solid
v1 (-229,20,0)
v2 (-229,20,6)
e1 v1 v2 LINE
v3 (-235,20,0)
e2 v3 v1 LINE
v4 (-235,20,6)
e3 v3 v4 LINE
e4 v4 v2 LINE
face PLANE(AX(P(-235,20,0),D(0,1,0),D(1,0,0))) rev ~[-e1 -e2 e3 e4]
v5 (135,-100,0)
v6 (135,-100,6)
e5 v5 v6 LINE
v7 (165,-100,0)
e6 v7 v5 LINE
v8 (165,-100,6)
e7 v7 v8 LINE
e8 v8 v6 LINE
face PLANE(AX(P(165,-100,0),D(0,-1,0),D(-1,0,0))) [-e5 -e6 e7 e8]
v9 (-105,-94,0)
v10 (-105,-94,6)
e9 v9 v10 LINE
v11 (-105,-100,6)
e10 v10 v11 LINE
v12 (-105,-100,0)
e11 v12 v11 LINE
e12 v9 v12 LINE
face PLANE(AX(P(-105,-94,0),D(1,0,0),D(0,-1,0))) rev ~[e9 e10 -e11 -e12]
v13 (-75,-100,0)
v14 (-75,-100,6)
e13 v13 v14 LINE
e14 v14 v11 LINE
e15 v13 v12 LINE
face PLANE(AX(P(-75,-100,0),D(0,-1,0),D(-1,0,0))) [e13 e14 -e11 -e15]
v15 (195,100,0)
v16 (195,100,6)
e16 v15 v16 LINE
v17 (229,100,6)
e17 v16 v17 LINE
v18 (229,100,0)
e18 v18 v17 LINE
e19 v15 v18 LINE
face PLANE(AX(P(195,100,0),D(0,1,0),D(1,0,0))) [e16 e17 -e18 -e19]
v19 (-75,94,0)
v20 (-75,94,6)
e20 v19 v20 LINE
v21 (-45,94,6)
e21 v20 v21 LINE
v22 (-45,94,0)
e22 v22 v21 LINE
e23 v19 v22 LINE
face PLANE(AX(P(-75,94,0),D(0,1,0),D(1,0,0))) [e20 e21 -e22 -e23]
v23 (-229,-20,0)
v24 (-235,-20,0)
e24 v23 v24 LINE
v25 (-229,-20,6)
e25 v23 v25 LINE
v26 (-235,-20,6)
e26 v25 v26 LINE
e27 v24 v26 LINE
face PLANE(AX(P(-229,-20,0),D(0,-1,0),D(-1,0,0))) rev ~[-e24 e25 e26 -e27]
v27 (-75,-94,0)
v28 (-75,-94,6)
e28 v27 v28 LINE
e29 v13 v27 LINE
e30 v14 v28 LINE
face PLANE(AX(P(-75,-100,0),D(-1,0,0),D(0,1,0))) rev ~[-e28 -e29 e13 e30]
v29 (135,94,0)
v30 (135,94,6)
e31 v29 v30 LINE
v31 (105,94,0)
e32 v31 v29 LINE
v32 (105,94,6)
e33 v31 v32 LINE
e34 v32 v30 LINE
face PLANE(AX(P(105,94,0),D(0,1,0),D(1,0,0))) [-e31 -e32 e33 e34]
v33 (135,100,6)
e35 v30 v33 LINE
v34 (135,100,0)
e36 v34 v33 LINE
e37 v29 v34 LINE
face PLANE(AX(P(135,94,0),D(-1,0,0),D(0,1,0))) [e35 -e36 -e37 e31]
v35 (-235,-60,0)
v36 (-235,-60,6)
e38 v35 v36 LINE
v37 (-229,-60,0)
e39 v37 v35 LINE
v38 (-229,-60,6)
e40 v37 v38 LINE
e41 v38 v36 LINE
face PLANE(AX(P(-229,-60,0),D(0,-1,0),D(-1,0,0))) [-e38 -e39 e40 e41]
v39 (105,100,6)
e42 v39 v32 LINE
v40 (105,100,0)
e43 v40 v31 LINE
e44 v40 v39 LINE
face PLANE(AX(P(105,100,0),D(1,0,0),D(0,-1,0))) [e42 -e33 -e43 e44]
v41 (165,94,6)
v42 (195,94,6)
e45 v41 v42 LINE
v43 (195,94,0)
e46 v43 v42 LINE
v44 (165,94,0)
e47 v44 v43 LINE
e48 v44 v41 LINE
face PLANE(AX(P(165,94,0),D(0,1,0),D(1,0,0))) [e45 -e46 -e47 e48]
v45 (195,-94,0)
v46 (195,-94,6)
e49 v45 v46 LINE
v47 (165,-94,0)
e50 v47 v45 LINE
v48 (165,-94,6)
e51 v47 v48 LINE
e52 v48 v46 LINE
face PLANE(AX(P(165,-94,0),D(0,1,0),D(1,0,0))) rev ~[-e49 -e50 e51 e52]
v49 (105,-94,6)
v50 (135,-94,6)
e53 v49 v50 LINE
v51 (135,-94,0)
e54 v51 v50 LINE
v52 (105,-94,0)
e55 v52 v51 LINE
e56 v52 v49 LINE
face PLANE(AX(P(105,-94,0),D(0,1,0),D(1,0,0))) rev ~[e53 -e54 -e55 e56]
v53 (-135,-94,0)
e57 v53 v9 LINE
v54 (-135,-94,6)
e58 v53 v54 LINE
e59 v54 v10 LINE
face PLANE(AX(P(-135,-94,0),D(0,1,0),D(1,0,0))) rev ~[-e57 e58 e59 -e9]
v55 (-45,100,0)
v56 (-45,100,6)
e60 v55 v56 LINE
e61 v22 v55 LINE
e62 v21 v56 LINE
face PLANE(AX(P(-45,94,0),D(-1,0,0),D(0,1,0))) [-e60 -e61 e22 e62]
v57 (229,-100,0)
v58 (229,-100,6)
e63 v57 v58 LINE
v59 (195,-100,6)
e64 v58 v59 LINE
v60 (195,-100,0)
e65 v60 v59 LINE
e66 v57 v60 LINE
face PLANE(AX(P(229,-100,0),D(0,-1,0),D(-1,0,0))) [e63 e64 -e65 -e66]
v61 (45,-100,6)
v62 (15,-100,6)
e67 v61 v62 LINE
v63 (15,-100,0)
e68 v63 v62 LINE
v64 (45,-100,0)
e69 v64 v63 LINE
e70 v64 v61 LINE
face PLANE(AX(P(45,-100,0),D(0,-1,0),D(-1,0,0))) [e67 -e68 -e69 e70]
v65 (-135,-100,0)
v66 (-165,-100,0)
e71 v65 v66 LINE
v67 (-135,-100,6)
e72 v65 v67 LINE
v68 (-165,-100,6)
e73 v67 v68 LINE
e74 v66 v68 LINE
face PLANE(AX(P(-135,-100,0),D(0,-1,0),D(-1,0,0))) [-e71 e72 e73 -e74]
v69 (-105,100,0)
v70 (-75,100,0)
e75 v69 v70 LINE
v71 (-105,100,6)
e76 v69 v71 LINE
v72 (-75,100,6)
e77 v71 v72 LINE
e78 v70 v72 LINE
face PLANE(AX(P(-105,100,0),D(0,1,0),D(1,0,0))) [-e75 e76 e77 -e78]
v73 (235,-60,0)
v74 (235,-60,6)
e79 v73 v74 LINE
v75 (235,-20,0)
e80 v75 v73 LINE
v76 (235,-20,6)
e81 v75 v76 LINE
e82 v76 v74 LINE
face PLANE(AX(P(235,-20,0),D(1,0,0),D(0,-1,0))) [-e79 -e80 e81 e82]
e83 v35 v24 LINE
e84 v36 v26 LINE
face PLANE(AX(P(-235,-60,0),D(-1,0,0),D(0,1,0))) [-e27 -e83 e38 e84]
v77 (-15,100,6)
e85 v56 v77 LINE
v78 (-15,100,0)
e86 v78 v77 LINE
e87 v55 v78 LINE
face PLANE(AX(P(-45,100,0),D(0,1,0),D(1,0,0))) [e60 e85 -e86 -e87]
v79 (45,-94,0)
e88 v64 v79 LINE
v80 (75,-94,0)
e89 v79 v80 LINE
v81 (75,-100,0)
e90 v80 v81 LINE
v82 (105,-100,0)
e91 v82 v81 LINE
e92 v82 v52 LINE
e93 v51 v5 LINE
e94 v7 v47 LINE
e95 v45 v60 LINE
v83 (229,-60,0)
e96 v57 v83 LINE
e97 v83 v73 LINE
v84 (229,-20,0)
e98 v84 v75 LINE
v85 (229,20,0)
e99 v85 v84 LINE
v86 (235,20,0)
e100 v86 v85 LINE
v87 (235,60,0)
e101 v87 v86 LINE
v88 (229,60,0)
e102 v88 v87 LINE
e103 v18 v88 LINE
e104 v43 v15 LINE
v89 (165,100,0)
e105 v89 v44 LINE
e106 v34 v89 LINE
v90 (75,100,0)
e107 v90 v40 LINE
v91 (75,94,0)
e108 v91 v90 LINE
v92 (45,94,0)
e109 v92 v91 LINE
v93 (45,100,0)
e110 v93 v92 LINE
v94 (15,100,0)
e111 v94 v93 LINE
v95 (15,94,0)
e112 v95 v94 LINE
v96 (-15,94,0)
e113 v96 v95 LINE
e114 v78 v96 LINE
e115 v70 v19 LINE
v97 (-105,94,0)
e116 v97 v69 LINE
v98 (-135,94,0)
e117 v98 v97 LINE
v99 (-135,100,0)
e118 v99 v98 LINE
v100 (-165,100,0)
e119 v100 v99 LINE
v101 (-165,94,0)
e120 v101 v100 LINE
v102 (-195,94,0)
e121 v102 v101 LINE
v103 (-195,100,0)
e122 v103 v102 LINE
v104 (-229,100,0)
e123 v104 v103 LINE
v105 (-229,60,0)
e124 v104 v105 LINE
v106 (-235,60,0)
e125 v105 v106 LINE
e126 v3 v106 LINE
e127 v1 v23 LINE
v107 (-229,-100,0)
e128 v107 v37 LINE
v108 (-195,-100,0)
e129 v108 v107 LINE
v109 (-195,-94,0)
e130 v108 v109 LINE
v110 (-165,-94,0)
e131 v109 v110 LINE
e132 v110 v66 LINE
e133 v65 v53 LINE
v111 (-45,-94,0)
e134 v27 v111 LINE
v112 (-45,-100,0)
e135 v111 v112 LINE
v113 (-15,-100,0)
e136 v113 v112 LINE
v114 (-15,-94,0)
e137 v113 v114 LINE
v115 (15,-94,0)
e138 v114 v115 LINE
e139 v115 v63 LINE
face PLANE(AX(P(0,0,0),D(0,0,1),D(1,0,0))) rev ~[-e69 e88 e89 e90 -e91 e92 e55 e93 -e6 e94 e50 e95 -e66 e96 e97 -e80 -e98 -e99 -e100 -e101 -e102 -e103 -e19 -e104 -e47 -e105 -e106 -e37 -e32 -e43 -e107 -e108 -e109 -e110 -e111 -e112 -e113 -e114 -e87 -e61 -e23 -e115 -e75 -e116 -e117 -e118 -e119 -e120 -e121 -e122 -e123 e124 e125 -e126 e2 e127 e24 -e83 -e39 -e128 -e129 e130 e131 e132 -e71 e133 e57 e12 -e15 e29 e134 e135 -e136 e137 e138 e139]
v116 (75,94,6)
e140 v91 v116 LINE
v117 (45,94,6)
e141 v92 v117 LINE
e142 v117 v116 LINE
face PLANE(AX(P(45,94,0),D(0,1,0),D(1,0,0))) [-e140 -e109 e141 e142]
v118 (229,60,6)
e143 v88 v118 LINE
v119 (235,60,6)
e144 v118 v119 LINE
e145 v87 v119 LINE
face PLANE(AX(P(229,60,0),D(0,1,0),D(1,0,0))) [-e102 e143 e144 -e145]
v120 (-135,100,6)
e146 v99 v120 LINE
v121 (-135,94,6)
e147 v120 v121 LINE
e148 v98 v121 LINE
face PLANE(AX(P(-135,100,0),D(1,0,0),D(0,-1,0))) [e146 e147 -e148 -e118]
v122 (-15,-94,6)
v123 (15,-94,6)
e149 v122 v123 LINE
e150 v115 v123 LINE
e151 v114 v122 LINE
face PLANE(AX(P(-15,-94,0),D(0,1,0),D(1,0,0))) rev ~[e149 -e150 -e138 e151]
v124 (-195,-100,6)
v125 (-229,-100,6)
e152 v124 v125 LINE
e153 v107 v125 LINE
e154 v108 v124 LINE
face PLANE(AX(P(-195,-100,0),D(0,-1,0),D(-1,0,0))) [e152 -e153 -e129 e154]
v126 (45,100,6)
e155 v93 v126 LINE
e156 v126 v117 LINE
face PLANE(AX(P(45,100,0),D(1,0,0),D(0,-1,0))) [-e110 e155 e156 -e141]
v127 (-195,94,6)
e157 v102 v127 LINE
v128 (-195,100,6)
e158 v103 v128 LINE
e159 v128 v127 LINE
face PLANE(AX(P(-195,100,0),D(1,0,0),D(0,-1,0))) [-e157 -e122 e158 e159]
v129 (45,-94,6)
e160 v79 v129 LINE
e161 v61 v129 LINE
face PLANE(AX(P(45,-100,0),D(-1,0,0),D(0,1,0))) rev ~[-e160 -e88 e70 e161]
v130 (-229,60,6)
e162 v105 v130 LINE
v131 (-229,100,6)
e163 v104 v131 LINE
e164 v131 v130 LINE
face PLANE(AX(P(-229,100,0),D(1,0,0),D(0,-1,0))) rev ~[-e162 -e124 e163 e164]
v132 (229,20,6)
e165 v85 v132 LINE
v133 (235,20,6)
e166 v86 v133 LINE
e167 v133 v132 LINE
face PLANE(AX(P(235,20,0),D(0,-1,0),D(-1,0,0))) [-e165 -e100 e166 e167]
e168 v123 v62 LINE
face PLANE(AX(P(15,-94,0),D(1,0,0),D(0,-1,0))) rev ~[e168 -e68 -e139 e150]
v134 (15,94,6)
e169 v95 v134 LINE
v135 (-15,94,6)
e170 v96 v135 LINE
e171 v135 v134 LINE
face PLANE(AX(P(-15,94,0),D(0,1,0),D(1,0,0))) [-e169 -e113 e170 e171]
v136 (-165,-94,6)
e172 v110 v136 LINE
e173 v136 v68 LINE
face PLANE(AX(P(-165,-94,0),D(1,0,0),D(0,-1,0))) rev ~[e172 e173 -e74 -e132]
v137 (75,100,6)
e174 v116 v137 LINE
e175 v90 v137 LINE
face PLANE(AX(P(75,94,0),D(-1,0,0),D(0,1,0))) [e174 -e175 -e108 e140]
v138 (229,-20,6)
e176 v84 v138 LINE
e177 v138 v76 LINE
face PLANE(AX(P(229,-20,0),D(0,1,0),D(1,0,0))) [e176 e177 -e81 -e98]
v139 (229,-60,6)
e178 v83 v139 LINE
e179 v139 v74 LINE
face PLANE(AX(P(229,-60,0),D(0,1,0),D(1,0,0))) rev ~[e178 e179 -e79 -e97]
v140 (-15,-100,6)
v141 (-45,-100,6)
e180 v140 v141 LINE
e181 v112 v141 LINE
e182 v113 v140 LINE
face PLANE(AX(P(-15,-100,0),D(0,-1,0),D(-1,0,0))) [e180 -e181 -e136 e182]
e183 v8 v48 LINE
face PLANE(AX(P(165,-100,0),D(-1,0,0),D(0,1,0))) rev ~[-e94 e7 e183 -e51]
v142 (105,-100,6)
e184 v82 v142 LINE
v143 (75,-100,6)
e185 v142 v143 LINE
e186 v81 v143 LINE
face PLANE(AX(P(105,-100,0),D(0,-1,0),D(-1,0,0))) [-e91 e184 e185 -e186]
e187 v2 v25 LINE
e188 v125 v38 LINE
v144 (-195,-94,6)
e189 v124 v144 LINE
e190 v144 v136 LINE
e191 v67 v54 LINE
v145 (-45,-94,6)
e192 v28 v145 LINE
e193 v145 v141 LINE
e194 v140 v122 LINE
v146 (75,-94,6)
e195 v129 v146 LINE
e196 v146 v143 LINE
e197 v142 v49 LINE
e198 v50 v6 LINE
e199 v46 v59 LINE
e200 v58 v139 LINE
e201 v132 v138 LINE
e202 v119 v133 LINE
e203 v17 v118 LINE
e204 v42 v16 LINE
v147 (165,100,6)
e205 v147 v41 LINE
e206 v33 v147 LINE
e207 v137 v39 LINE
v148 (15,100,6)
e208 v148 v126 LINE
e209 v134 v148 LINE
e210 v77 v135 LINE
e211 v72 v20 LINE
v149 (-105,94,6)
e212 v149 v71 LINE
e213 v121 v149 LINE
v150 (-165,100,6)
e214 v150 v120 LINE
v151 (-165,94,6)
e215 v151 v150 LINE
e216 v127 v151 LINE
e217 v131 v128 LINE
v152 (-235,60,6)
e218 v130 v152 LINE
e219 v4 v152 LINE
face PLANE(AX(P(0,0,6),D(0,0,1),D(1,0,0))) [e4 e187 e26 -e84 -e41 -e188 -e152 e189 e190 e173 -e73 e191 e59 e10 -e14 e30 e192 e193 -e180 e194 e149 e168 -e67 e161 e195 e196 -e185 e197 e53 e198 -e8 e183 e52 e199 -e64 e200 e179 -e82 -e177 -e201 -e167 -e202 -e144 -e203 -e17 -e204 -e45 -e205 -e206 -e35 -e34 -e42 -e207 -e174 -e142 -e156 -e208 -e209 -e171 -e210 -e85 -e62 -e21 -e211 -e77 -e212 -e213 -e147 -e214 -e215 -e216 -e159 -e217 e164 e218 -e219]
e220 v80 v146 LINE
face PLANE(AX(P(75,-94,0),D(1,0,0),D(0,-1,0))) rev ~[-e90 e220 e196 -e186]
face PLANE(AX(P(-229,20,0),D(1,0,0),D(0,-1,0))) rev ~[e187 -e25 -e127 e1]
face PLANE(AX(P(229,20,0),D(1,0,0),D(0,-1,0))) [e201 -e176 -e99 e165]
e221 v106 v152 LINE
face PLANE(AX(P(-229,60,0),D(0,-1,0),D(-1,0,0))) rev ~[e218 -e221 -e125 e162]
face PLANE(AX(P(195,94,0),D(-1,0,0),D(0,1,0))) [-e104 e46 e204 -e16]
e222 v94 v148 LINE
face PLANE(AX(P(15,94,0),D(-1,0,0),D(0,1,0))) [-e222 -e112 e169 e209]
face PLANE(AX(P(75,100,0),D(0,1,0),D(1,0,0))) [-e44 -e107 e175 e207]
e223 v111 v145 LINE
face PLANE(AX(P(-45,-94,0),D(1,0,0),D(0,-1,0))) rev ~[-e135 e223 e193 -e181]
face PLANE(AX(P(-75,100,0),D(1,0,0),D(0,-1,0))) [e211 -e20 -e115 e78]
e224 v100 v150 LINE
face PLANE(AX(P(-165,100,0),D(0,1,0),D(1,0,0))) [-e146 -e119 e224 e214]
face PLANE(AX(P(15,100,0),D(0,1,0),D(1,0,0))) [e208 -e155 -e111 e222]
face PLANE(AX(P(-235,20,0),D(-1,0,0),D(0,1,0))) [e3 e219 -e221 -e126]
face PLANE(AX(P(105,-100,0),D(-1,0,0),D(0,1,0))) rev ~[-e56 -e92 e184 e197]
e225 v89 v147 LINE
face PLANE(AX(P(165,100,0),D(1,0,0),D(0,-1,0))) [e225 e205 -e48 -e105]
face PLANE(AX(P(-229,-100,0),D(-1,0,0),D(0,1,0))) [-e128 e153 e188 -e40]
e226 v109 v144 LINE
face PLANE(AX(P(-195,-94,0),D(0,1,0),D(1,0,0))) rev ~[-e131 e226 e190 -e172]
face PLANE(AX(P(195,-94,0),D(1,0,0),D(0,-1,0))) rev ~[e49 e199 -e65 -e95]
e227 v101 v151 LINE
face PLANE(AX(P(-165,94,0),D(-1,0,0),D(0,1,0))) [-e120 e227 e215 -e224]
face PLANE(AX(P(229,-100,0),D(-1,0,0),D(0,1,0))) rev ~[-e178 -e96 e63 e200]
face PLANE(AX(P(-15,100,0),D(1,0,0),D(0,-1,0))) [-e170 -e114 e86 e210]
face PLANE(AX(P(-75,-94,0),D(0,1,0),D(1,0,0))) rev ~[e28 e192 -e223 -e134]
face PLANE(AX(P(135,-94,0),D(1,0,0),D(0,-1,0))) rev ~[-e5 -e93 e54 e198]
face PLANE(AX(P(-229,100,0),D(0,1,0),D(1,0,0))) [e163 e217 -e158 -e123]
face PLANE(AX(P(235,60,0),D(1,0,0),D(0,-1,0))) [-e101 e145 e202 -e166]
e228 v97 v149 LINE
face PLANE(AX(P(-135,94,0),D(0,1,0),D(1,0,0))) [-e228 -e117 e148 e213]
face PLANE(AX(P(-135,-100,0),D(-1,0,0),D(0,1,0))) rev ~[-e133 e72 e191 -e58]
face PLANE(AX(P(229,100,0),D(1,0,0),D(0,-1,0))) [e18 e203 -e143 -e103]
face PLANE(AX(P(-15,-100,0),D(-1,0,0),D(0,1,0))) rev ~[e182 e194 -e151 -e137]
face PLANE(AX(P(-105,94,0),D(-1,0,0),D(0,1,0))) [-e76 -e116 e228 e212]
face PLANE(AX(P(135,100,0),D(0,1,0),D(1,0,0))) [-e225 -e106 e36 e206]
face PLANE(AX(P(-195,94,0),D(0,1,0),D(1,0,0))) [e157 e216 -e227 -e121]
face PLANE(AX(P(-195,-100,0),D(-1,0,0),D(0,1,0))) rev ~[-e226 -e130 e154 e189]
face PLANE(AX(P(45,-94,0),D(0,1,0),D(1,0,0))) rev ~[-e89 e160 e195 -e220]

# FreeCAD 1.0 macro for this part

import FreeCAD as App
import Part
import Sketcher

V = App.Vector

doc = App.newDocument("Part")
params = doc.addObject("Spreadsheet::Sheet", "Params")
for row, (alias, value) in enumerate([
    ("sketch1_width", "6 mm"),
    ("sketch1_width2", "30 mm"),
    ("sketch1_height", "40 mm"),
    ("sketch1_width3", "34 mm"),
    ("pad1_length", "6 mm"),
], start=1):
    params.set(f"A{row}", alias)
    params.set(f"B{row}", "=" + value)
    params.setAlias(f"B{row}", alias)

body = doc.addObject("PartDesign::Body", "Body")

# Sketch on XY plane
sketch1 = body.newObject("Sketcher::SketchObject", "Sketch")
sketch1.AttachmentSupport = (doc.getObject("XY_Plane"), [""])
sketch1.MapMode = "FlatFace"
sketch1.addGeometry([
    Part.LineSegment(V(-195, 100, 0), V(-229, 100, 0)),  # 0
    Part.LineSegment(V(-229, 100, 0), V(-229, 60, 0)),  # 1
    Part.LineSegment(V(-229, 60, 0), V(-235, 60, 0)),  # 2
    Part.LineSegment(V(-235, 60, 0), V(-235, 20, 0)),  # 3
    Part.LineSegment(V(-235, 20, 0), V(-229, 20, 0)),  # 4
    Part.LineSegment(V(-229, 20, 0), V(-229, -20, 0)),  # 5
    Part.LineSegment(V(-229, -20, 0), V(-235, -20, 0)),  # 6
    Part.LineSegment(V(-235, -20, 0), V(-235, -60, 0)),  # 7
    Part.LineSegment(V(-235, -60, 0), V(-229, -60, 0)),  # 8
    Part.LineSegment(V(-229, -60, 0), V(-229, -100, 0)),  # 9
    Part.LineSegment(V(-229, -100, 0), V(-195, -100, 0)),  # 10
    Part.LineSegment(V(-195, -100, 0), V(-195, -94, 0)),  # 11
    Part.LineSegment(V(-195, -94, 0), V(-165, -94, 0)),  # 12
    Part.LineSegment(V(-165, -94, 0), V(-165, -100, 0)),  # 13
    Part.LineSegment(V(-165, -100, 0), V(-135, -100, 0)),  # 14
    Part.LineSegment(V(-135, -100, 0), V(-135, -94, 0)),  # 15
    Part.LineSegment(V(-135, -94, 0), V(-105, -94, 0)),  # 16
    Part.LineSegment(V(-105, -94, 0), V(-105, -100, 0)),  # 17
    Part.LineSegment(V(-105, -100, 0), V(-75, -100, 0)),  # 18
    Part.LineSegment(V(-75, -100, 0), V(-75, -94, 0)),  # 19
    Part.LineSegment(V(-75, -94, 0), V(-45, -94, 0)),  # 20
    Part.LineSegment(V(-45, -94, 0), V(-45, -100, 0)),  # 21
    Part.LineSegment(V(-45, -100, 0), V(-15, -100, 0)),  # 22
    Part.LineSegment(V(-15, -100, 0), V(-15, -94, 0)),  # 23
    Part.LineSegment(V(-15, -94, 0), V(15, -94, 0)),  # 24
    Part.LineSegment(V(15, -94, 0), V(15, -100, 0)),  # 25
    Part.LineSegment(V(15, -100, 0), V(45, -100, 0)),  # 26
    Part.LineSegment(V(45, -100, 0), V(45, -94, 0)),  # 27
    Part.LineSegment(V(45, -94, 0), V(75, -94, 0)),  # 28
    Part.LineSegment(V(75, -94, 0), V(75, -100, 0)),  # 29
    Part.LineSegment(V(75, -100, 0), V(105, -100, 0)),  # 30
    Part.LineSegment(V(105, -100, 0), V(105, -94, 0)),  # 31
    Part.LineSegment(V(105, -94, 0), V(135, -94, 0)),  # 32
    Part.LineSegment(V(135, -94, 0), V(135, -100, 0)),  # 33
    Part.LineSegment(V(135, -100, 0), V(165, -100, 0)),  # 34
    Part.LineSegment(V(165, -100, 0), V(165, -94, 0)),  # 35
    Part.LineSegment(V(165, -94, 0), V(195, -94, 0)),  # 36
    Part.LineSegment(V(195, -94, 0), V(195, -100, 0)),  # 37
    Part.LineSegment(V(195, -100, 0), V(229, -100, 0)),  # 38
    Part.LineSegment(V(229, -100, 0), V(229, -60, 0)),  # 39
    Part.LineSegment(V(229, -60, 0), V(235, -60, 0)),  # 40
    Part.LineSegment(V(235, -60, 0), V(235, -20, 0)),  # 41
    Part.LineSegment(V(235, -20, 0), V(229, -20, 0)),  # 42
    Part.LineSegment(V(229, -20, 0), V(229, 20, 0)),  # 43
    Part.LineSegment(V(229, 20, 0), V(235, 20, 0)),  # 44
    Part.LineSegment(V(235, 20, 0), V(235, 60, 0)),  # 45
    Part.LineSegment(V(235, 60, 0), V(229, 60, 0)),  # 46
    Part.LineSegment(V(229, 60, 0), V(229, 100, 0)),  # 47
    Part.LineSegment(V(229, 100, 0), V(195, 100, 0)),  # 48
    Part.LineSegment(V(195, 100, 0), V(195, 94, 0)),  # 49
    Part.LineSegment(V(195, 94, 0), V(165, 94, 0)),  # 50
    Part.LineSegment(V(165, 94, 0), V(165, 100, 0)),  # 51
    Part.LineSegment(V(165, 100, 0), V(135, 100, 0)),  # 52
    Part.LineSegment(V(135, 100, 0), V(135, 94, 0)),  # 53
    Part.LineSegment(V(135, 94, 0), V(105, 94, 0)),  # 54
    Part.LineSegment(V(105, 94, 0), V(105, 100, 0)),  # 55
    Part.LineSegment(V(105, 100, 0), V(75, 100, 0)),  # 56
    Part.LineSegment(V(75, 100, 0), V(75, 94, 0)),  # 57
    Part.LineSegment(V(75, 94, 0), V(45, 94, 0)),  # 58
    Part.LineSegment(V(45, 94, 0), V(45, 100, 0)),  # 59
    Part.LineSegment(V(45, 100, 0), V(15, 100, 0)),  # 60
    Part.LineSegment(V(15, 100, 0), V(15, 94, 0)),  # 61
    Part.LineSegment(V(15, 94, 0), V(-15, 94, 0)),  # 62
    Part.LineSegment(V(-15, 94, 0), V(-15, 100, 0)),  # 63
    Part.LineSegment(V(-15, 100, 0), V(-45, 100, 0)),  # 64
    Part.LineSegment(V(-45, 100, 0), V(-45, 94, 0)),  # 65
    Part.LineSegment(V(-45, 94, 0), V(-75, 94, 0)),  # 66
    Part.LineSegment(V(-75, 94, 0), V(-75, 100, 0)),  # 67
    Part.LineSegment(V(-75, 100, 0), V(-105, 100, 0)),  # 68
    Part.LineSegment(V(-105, 100, 0), V(-105, 94, 0)),  # 69
    Part.LineSegment(V(-105, 94, 0), V(-135, 94, 0)),  # 70
    Part.LineSegment(V(-135, 94, 0), V(-135, 100, 0)),  # 71
    Part.LineSegment(V(-135, 100, 0), V(-165, 100, 0)),  # 72
    Part.LineSegment(V(-165, 100, 0), V(-165, 94, 0)),  # 73
    Part.LineSegment(V(-165, 94, 0), V(-195, 94, 0)),  # 74
    Part.LineSegment(V(-195, 94, 0), V(-195, 100, 0)),  # 75
], False)
sketch1.addConstraint([
    Sketcher.Constraint("Coincident", 0, 2, 1, 1),
    Sketcher.Constraint("Coincident", 1, 2, 2, 1),
    Sketcher.Constraint("Coincident", 2, 2, 3, 1),
    Sketcher.Constraint("Coincident", 3, 2, 4, 1),
    Sketcher.Constraint("Coincident", 4, 2, 5, 1),
    Sketcher.Constraint("Coincident", 5, 2, 6, 1),
    Sketcher.Constraint("Coincident", 6, 2, 7, 1),
    Sketcher.Constraint("Coincident", 7, 2, 8, 1),
    Sketcher.Constraint("Coincident", 8, 2, 9, 1),
    Sketcher.Constraint("Coincident", 9, 2, 10, 1),
    Sketcher.Constraint("Coincident", 10, 2, 11, 1),
    Sketcher.Constraint("Coincident", 11, 2, 12, 1),
    Sketcher.Constraint("Coincident", 12, 2, 13, 1),
    Sketcher.Constraint("Coincident", 13, 2, 14, 1),
    Sketcher.Constraint("Coincident", 14, 2, 15, 1),
    Sketcher.Constraint("Coincident", 15, 2, 16, 1),
    Sketcher.Constraint("Coincident", 16, 2, 17, 1),
    Sketcher.Constraint("Coincident", 17, 2, 18, 1),
    Sketcher.Constraint("Coincident", 18, 2, 19, 1),
    Sketcher.Constraint("Coincident", 19, 2, 20, 1),
    Sketcher.Constraint("Coincident", 20, 2, 21, 1),
    Sketcher.Constraint("Coincident", 21, 2, 22, 1),
    Sketcher.Constraint("Coincident", 22, 2, 23, 1),
    Sketcher.Constraint("Coincident", 23, 2, 24, 1),
    Sketcher.Constraint("Coincident", 24, 2, 25, 1),
    Sketcher.Constraint("Coincident", 25, 2, 26, 1),
    Sketcher.Constraint("Coincident", 26, 2, 27, 1),
    Sketcher.Constraint("Coincident", 27, 2, 28, 1),
    Sketcher.Constraint("Coincident", 28, 2, 29, 1),
    Sketcher.Constraint("Coincident", 29, 2, 30, 1),
    Sketcher.Constraint("Coincident", 30, 2, 31, 1),
    Sketcher.Constraint("Coincident", 31, 2, 32, 1),
    Sketcher.Constraint("Coincident", 32, 2, 33, 1),
    Sketcher.Constraint("Coincident", 33, 2, 34, 1),
    Sketcher.Constraint("Coincident", 34, 2, 35, 1),
    Sketcher.Constraint("Coincident", 35, 2, 36, 1),
    Sketcher.Constraint("Coincident", 36, 2, 37, 1),
    Sketcher.Constraint("Coincident", 37, 2, 38, 1),
    Sketcher.Constraint("Coincident", 38, 2, 39, 1),
    Sketcher.Constraint("Coincident", 39, 2, 40, 1),
    Sketcher.Constraint("Coincident", 40, 2, 41, 1),
    Sketcher.Constraint("Coincident", 41, 2, 42, 1),
    Sketcher.Constraint("Coincident", 42, 2, 43, 1),
    Sketcher.Constraint("Coincident", 43, 2, 44, 1),
    Sketcher.Constraint("Coincident", 44, 2, 45, 1),
    Sketcher.Constraint("Coincident", 45, 2, 46, 1),
    Sketcher.Constraint("Coincident", 46, 2, 47, 1),
    Sketcher.Constraint("Coincident", 47, 2, 48, 1),
    Sketcher.Constraint("Coincident", 48, 2, 49, 1),
    Sketcher.Constraint("Coincident", 49, 2, 50, 1),
    Sketcher.Constraint("Coincident", 50, 2, 51, 1),
    Sketcher.Constraint("Coincident", 51, 2, 52, 1),
    Sketcher.Constraint("Coincident", 52, 2, 53, 1),
    Sketcher.Constraint("Coincident", 53, 2, 54, 1),
    Sketcher.Constraint("Coincident", 54, 2, 55, 1),
    Sketcher.Constraint("Coincident", 55, 2, 56, 1),
    Sketcher.Constraint("Coincident", 56, 2, 57, 1),
    Sketcher.Constraint("Coincident", 57, 2, 58, 1),
    Sketcher.Constraint("Coincident", 58, 2, 59, 1),
    Sketcher.Constraint("Coincident", 59, 2, 60, 1),
    Sketcher.Constraint("Coincident", 60, 2, 61, 1),
    Sketcher.Constraint("Coincident", 61, 2, 62, 1),
    Sketcher.Constraint("Coincident", 62, 2, 63, 1),
    Sketcher.Constraint("Coincident", 63, 2, 64, 1),
    Sketcher.Constraint("Coincident", 64, 2, 65, 1),
    Sketcher.Constraint("Coincident", 65, 2, 66, 1),
    Sketcher.Constraint("Coincident", 66, 2, 67, 1),
    Sketcher.Constraint("Coincident", 67, 2, 68, 1),
    Sketcher.Constraint("Coincident", 68, 2, 69, 1),
    Sketcher.Constraint("Coincident", 69, 2, 70, 1),
    Sketcher.Constraint("Coincident", 70, 2, 71, 1),
    Sketcher.Constraint("Coincident", 71, 2, 72, 1),
    Sketcher.Constraint("Coincident", 72, 2, 73, 1),
    Sketcher.Constraint("Coincident", 73, 2, 74, 1),
    Sketcher.Constraint("Coincident", 74, 2, 75, 1),
    Sketcher.Constraint("Coincident", 75, 2, 0, 1),
    Sketcher.Constraint("Horizontal", 0),
    Sketcher.Constraint("Vertical", 1),
    Sketcher.Constraint("Horizontal", 2),
    Sketcher.Constraint("Vertical", 3),
    Sketcher.Constraint("Horizontal", 4),
    Sketcher.Constraint("Vertical", 5),
    Sketcher.Constraint("Horizontal", 6),
    Sketcher.Constraint("Vertical", 7),
    Sketcher.Constraint("Horizontal", 8),
    Sketcher.Constraint("Vertical", 9),
    Sketcher.Constraint("Horizontal", 10),
    Sketcher.Constraint("Vertical", 11),
    Sketcher.Constraint("Horizontal", 12),
    Sketcher.Constraint("Vertical", 13),
    Sketcher.Constraint("Horizontal", 14),
    Sketcher.Constraint("Vertical", 15),
    Sketcher.Constraint("Horizontal", 16),
    Sketcher.Constraint("Vertical", 17),
    Sketcher.Constraint("Horizontal", 18),
    Sketcher.Constraint("Vertical", 19),
    Sketcher.Constraint("Horizontal", 20),
    Sketcher.Constraint("Vertical", 21),
    Sketcher.Constraint("Horizontal", 22),
    Sketcher.Constraint("Vertical", 23),
    Sketcher.Constraint("Horizontal", 24),
    Sketcher.Constraint("Vertical", 25),
    Sketcher.Constraint("Horizontal", 26),
    Sketcher.Constraint("Vertical", 27),
    Sketcher.Constraint("Horizontal", 28),
    Sketcher.Constraint("Vertical", 29),
    Sketcher.Constraint("Horizontal", 30),
    Sketcher.Constraint("Vertical", 31),
    Sketcher.Constraint("Horizontal", 32),
    Sketcher.Constraint("Vertical", 33),
    Sketcher.Constraint("Horizontal", 34),
    Sketcher.Constraint("Vertical", 35),
    Sketcher.Constraint("Horizontal", 36),
    Sketcher.Constraint("Vertical", 37),
    Sketcher.Constraint("Horizontal", 38),
    Sketcher.Constraint("Vertical", 39),
    Sketcher.Constraint("Horizontal", 40),
    Sketcher.Constraint("Vertical", 41),
    Sketcher.Constraint("Horizontal", 42),
    Sketcher.Constraint("Vertical", 43),
    Sketcher.Constraint("Horizontal", 44),
    Sketcher.Constraint("Vertical", 45),
    Sketcher.Constraint("Horizontal", 46),
    Sketcher.Constraint("Vertical", 47),
    Sketcher.Constraint("Horizontal", 48),
    Sketcher.Constraint("Vertical", 49),
    Sketcher.Constraint("Horizontal", 50),
    Sketcher.Constraint("Vertical", 51),
    Sketcher.Constraint("Horizontal", 52),
    Sketcher.Constraint("Vertical", 53),
    Sketcher.Constraint("Horizontal", 54),
    Sketcher.Constraint("Vertical", 55),
    Sketcher.Constraint("Horizontal", 56),
    Sketcher.Constraint("Vertical", 57),
    Sketcher.Constraint("Horizontal", 58),
    Sketcher.Constraint("Vertical", 59),
    Sketcher.Constraint("Horizontal", 60),
    Sketcher.Constraint("Vertical", 61),
    Sketcher.Constraint("Horizontal", 62),
    Sketcher.Constraint("Vertical", 63),
    Sketcher.Constraint("Horizontal", 64),
    Sketcher.Constraint("Vertical", 65),
    Sketcher.Constraint("Horizontal", 66),
    Sketcher.Constraint("Vertical", 67),
    Sketcher.Constraint("Horizontal", 68),
    Sketcher.Constraint("Vertical", 69),
    Sketcher.Constraint("Horizontal", 70),
    Sketcher.Constraint("Vertical", 71),
    Sketcher.Constraint("Horizontal", 72),
    Sketcher.Constraint("Vertical", 73),
    Sketcher.Constraint("Horizontal", 74),
    Sketcher.Constraint("Vertical", 75),
    Sketcher.Constraint("Symmetric", 0, 2, 38, 2, -1, 1),
    Sketcher.Constraint("Symmetric", 2, 2, 40, 2, -1, 1),
    Sketcher.Constraint("Symmetric", 4, 2, 42, 2, -1, 1),
    Sketcher.Constraint("Symmetric", 6, 2, 44, 2, -1, 1),
    Sketcher.Constraint("Symmetric", 8, 2, 46, 2, -1, 1),
    Sketcher.Constraint("Symmetric", 10, 2, 48, 2, -1, 1),
    Sketcher.Constraint("Symmetric", 12, 2, 50, 2, -1, 1),
    Sketcher.Constraint("Symmetric", 14, 2, 52, 2, -1, 1),
    Sketcher.Constraint("Symmetric", 16, 2, 54, 2, -1, 1),
    Sketcher.Constraint("Symmetric", 18, 2, 56, 2, -1, 1),
    Sketcher.Constraint("Symmetric", 20, 2, 58, 2, -1, 1),
    Sketcher.Constraint("Symmetric", 22, 2, 60, 2, -1, 1),
    Sketcher.Constraint("Symmetric", 24, 2, 62, 2, -1, 1),
    Sketcher.Constraint("Symmetric", 26, 2, 64, 2, -1, 1),
    Sketcher.Constraint("Symmetric", 28, 2, 66, 2, -1, 1),
    Sketcher.Constraint("Symmetric", 30, 2, 68, 2, -1, 1),
    Sketcher.Constraint("Symmetric", 32, 2, 70, 2, -1, 1),
    Sketcher.Constraint("Symmetric", 34, 2, 72, 2, -1, 1),
    Sketcher.Constraint("Symmetric", 36, 2, 74, 2, -1, 1),
    Sketcher.Constraint("Symmetric", 22, 2, 25, 2, -2),
    Sketcher.Constraint("Symmetric", 20, 2, 27, 2, -2),
    Sketcher.Constraint("Symmetric", 18, 2, 29, 2, -2),
    Sketcher.Constraint("Symmetric", 16, 2, 31, 2, -2),
    Sketcher.Constraint("Symmetric", 14, 2, 33, 2, -2),
    Sketcher.Constraint("Symmetric", 12, 2, 35, 2, -2),
    Sketcher.Constraint("Symmetric", 10, 2, 37, 2, -2),
    Sketcher.Constraint("Symmetric", 8, 2, 39, 2, -2),
    Sketcher.Constraint("Symmetric", 6, 2, 41, 2, -2),
    Sketcher.Constraint("Horizontal", 10, 2, 13, 2),
    Sketcher.Constraint("Horizontal", 12, 2, 15, 2),
    Sketcher.Constraint("Horizontal", 14, 2, 17, 2),
    Sketcher.Constraint("Horizontal", 16, 2, 19, 2),
    Sketcher.Constraint("Horizontal", 18, 2, 21, 2),
    Sketcher.Constraint("Horizontal", 20, 2, 23, 2),
    Sketcher.Constraint("Vertical", 1, 2, 4, 2),
    Sketcher.Constraint("Equal", 12, 14),
    Sketcher.Constraint("Equal", 14, 16),
    Sketcher.Constraint("Equal", 16, 18),
    Sketcher.Constraint("Equal", 18, 20),
    Sketcher.Constraint("Equal", 20, 22),
    Sketcher.Constraint("Equal", 22, 24),
    Sketcher.Constraint("Equal", 1, 3),
    Sketcher.Constraint("Equal", 3, 5),
    Sketcher.Constraint("Equal", 46, 11),
    Sketcher.Constraint("DistanceX", 2, 2, 2, 1, 6.0),
    Sketcher.Constraint("DistanceX", 12, 1, 12, 2, 30.0),
    Sketcher.Constraint("DistanceY", 1, 2, 1, 1, 40.0),
    Sketcher.Constraint("DistanceX", 0, 2, 0, 1, 34.0),
])
sketch1.setExpression("Constraints[196]", "Params.sketch1_width")
sketch1.setExpression("Constraints[197]", "Params.sketch1_width2")
sketch1.setExpression("Constraints[198]", "Params.sketch1_height")
sketch1.setExpression("Constraints[199]", "Params.sketch1_width3")
pad1 = body.newObject("PartDesign::Pad", "Pad")
pad1.Profile = sketch1
pad1.setExpression("Length", "Params.pad1_length")

doc.recompute()
